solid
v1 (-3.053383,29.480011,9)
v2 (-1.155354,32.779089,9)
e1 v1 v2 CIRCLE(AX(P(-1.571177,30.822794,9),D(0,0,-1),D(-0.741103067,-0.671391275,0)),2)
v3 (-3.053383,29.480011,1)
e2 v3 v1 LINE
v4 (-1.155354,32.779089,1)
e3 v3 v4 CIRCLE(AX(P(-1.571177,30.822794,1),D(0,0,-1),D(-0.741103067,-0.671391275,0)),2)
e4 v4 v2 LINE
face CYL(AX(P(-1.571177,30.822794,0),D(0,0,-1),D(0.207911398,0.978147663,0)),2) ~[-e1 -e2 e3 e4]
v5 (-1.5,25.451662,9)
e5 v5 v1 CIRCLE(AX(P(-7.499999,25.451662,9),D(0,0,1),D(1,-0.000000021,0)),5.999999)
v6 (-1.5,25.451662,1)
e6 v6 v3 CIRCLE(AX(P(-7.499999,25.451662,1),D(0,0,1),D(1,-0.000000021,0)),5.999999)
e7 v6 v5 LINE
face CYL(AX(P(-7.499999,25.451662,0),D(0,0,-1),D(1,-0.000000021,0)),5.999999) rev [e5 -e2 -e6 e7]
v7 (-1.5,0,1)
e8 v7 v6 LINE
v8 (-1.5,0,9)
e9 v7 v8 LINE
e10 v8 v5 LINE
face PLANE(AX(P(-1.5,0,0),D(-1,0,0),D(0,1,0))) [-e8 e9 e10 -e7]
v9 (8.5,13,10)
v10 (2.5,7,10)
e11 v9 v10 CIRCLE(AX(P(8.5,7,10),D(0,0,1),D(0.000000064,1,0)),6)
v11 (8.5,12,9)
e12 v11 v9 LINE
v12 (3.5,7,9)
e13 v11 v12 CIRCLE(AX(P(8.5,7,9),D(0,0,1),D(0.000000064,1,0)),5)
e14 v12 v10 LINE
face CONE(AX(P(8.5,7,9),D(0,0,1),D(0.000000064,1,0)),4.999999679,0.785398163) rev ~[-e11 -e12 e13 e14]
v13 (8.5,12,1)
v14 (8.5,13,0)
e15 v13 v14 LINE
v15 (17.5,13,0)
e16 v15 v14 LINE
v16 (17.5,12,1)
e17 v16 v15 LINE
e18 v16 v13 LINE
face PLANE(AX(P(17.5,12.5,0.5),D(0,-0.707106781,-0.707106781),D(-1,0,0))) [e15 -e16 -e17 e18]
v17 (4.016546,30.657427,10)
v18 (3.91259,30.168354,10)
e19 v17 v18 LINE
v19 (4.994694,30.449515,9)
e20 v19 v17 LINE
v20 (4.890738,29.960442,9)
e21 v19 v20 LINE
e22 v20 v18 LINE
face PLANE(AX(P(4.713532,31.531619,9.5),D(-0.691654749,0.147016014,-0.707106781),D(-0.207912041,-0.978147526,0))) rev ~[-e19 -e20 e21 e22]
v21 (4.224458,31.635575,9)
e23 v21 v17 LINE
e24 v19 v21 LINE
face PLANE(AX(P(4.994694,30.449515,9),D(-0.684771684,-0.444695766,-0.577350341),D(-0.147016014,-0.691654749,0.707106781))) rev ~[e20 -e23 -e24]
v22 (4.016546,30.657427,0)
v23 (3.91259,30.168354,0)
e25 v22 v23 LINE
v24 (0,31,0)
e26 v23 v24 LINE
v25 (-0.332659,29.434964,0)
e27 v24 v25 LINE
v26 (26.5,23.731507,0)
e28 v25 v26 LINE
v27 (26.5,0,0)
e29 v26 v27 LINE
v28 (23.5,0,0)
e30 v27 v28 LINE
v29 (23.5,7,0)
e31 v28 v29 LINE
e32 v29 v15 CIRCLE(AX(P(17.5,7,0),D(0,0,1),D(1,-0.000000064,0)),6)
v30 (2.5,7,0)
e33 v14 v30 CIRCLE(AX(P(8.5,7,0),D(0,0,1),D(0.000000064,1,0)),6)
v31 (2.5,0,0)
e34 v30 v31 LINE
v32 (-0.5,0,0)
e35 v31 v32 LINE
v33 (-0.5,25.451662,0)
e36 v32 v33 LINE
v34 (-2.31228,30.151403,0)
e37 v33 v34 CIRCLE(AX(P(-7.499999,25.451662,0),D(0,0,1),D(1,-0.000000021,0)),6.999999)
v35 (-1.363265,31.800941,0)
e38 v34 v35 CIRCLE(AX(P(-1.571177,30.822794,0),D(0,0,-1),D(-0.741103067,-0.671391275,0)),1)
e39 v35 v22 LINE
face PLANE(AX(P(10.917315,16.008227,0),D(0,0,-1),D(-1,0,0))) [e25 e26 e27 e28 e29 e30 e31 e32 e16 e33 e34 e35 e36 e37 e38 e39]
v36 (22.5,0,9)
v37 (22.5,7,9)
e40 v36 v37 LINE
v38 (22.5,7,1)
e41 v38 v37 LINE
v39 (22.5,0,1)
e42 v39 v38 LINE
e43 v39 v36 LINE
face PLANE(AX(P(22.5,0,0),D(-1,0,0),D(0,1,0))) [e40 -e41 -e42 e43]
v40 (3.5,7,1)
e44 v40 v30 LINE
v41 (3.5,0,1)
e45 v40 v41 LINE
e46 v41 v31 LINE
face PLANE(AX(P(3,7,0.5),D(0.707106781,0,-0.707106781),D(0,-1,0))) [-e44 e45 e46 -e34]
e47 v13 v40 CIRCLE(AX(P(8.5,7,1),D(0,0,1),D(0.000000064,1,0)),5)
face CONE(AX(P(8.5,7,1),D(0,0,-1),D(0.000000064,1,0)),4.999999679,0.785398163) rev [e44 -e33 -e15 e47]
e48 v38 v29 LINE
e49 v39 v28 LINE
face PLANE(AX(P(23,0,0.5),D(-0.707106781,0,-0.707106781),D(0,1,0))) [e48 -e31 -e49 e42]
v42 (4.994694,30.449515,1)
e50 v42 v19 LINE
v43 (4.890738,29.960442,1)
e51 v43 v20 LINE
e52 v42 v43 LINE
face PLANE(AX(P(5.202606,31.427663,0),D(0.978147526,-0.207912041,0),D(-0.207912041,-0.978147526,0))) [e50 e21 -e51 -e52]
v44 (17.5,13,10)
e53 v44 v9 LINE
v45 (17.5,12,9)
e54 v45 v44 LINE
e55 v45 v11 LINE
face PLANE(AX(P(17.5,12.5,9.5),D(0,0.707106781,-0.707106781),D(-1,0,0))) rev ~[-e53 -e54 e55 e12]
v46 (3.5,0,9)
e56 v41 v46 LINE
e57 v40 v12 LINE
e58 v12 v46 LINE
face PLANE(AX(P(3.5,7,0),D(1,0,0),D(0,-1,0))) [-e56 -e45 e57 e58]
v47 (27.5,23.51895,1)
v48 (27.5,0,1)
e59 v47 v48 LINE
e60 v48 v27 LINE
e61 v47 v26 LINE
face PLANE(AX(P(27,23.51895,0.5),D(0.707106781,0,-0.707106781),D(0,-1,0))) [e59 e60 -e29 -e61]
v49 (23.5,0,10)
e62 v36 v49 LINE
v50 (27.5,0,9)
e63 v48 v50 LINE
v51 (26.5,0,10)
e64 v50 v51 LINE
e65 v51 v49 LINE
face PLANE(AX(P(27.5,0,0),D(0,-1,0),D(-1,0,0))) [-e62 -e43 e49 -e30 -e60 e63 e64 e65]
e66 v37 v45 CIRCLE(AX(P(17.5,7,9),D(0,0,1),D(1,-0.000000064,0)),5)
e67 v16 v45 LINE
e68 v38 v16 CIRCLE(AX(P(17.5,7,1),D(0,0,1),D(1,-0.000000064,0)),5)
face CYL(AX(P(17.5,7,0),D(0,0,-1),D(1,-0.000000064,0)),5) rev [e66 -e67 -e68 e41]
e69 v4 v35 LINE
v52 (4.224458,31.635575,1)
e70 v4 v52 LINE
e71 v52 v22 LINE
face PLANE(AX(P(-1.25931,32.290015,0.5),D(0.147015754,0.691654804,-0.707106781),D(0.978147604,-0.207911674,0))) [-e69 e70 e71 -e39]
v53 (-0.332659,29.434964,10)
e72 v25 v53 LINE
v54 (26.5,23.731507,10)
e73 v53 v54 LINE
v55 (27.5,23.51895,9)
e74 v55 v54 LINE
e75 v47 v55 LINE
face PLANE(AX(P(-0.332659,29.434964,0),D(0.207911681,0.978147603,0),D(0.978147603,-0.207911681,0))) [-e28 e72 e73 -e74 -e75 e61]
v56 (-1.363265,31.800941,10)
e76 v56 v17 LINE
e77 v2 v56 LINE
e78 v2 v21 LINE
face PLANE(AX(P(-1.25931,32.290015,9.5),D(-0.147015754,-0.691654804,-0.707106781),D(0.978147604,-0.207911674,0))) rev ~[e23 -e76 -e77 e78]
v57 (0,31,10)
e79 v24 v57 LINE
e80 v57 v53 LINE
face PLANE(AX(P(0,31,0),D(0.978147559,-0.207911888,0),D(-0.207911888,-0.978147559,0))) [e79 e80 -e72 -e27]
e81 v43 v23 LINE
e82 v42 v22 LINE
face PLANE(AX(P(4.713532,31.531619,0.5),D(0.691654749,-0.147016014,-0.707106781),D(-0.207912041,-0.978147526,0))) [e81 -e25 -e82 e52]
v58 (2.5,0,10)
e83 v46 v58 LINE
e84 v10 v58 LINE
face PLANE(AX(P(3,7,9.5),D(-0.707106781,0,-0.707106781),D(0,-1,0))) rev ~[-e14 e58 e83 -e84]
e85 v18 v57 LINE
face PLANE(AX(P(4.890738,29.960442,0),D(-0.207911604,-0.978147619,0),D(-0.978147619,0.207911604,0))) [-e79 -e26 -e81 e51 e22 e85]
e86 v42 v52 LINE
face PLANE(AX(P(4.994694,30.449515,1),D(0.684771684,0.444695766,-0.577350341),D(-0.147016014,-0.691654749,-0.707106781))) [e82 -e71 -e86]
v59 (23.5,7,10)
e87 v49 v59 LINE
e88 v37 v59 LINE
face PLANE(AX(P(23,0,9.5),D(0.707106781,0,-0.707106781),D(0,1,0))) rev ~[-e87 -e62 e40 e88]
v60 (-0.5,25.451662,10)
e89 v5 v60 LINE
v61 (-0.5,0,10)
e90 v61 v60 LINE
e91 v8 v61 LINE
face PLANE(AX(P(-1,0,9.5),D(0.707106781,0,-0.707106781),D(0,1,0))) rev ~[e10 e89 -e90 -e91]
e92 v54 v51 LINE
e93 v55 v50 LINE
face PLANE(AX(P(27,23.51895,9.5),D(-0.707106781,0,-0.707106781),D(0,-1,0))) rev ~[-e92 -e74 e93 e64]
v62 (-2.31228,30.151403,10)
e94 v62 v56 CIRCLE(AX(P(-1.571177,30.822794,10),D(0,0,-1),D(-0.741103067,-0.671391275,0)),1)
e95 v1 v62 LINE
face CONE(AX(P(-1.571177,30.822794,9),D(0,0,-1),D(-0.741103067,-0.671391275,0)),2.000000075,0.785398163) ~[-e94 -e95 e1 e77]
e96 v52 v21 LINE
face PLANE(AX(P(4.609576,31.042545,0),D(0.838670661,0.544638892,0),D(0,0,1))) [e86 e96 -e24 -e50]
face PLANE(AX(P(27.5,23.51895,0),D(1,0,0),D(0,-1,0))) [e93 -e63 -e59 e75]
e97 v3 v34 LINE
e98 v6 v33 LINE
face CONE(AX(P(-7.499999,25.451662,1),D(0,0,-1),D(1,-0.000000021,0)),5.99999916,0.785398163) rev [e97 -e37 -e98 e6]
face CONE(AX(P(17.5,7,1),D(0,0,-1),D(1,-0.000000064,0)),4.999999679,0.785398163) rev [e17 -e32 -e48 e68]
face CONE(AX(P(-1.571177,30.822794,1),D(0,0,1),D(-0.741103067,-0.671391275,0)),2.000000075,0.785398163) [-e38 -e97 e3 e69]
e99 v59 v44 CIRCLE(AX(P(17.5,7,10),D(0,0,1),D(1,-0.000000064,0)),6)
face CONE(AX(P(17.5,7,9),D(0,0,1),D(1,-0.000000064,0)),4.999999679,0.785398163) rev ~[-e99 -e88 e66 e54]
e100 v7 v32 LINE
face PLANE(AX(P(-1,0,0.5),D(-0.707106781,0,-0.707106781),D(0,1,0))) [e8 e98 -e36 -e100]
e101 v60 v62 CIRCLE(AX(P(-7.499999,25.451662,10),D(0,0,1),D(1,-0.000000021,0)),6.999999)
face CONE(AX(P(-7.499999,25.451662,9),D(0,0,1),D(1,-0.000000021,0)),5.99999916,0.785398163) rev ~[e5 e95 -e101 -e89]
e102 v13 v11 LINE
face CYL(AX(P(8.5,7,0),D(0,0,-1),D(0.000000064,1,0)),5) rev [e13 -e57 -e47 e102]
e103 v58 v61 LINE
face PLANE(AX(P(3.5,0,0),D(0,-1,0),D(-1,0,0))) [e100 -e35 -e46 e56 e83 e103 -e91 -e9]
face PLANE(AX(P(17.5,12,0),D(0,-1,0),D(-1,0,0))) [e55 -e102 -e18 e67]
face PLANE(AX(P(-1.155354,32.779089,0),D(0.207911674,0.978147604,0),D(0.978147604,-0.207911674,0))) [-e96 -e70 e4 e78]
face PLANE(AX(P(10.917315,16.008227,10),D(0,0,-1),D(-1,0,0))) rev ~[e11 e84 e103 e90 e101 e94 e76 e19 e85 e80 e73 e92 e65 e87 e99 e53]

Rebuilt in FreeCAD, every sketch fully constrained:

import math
import FreeCAD as App
import Part
import Sketcher
from FreeCAD import Vector
Q = App.Units.Quantity


def edges_at(feature, points):
    """Names of the edges that pass closest to the given points."""
    edges = feature.Shape.Edges
    near = lambda p: min(range(len(edges)), key=lambda i: edges[i].distToShape(Part.Vertex(*p))[0])
    return sorted({f"Edge{near(p) + 1}" for p in points})

doc = App.newDocument("Part")
body = doc.addObject("PartDesign::Body", "Body")

# Sketch on XZ plane
sketch1 = body.newObject("Sketcher::SketchObject", "Sketch")
sketch1.AttachmentSupport = (doc.getObject("XZ_Plane"), [""])
sketch1.MapMode = "FlatFace"
sketch1.addGeometry(Part.LineSegment(Vector(-1.5, 25.451662, 0), Vector(-1.5, 0, 0)), False)
sketch1.addGeometry(Part.LineSegment(Vector(-1.5, 0, 0), Vector(3.5, 0, 0)), False)
sketch1.addGeometry(Part.LineSegment(Vector(3.5, 0, 0), Vector(3.5, 7, 0)), False)
sketch1.addGeometry(Part.ArcOfCircle(Part.Circle(Vector(8.5, 7, 0), Vector(0, 0, 1), 5), math.radians(89.999996), math.radians(180.000004)), False)
sketch1.addGeometry(Part.LineSegment(Vector(8.5, 12, 0), Vector(17.5, 12, 0)), False)
sketch1.addGeometry(Part.ArcOfCircle(Part.Circle(Vector(17.5, 7, 0), Vector(0, 0, 1), 5), math.radians(-0.000004), math.radians(90.000004)), False)
sketch1.addGeometry(Part.LineSegment(Vector(22.5, 7, 0), Vector(22.5, 0, 0)), False)
sketch1.addGeometry(Part.LineSegment(Vector(22.5, 0, 0), Vector(27.5, 0, 0)), False)
sketch1.addGeometry(Part.LineSegment(Vector(27.5, 0, 0), Vector(27.5, 23.51895, 0)), False)
sketch1.addGeometry(Part.LineSegment(Vector(27.5, 23.51895, 0), Vector(-0.332659, 29.434964, 0)), False)
sketch1.addGeometry(Part.LineSegment(Vector(-0.332659, 29.434964, 0), Vector(0, 31, 0)), False)
sketch1.addGeometry(Part.LineSegment(Vector(0, 31, 0), Vector(4.890738, 29.960442, 0)), False)
sketch1.addGeometry(Part.LineSegment(Vector(4.890738, 29.960442, 0), Vector(5.202606, 31.427663, 0)), False)
sketch1.addGeometry(Part.LineSegment(Vector(5.202606, 31.427663, 0), Vector(-1.155354, 32.779089, 0)), False)
sketch1.addGeometry(Part.ArcOfCircle(Part.Circle(Vector(-1.571177, 30.822794, 0), Vector(0, 0, 1), 2), math.radians(78.000017), math.radians(222.174535)), False)
sketch1.addGeometry(Part.ArcOfCircle(Part.Circle(Vector(-7.499999, 25.451662, 0), Vector(0, 0, 1), 5.999999), math.radians(-0.000001), math.radians(42.174558)), False)
sketch1.addConstraint(Sketcher.Constraint("Coincident", 0, 2, 1, 1))
sketch1.addConstraint(Sketcher.Constraint("Coincident", 1, 2, 2, 1))
sketch1.addConstraint(Sketcher.Constraint("Tangent", 2, 2, 3, 2))
sketch1.addConstraint(Sketcher.Constraint("Tangent", 3, 1, 4, 1))
sketch1.addConstraint(Sketcher.Constraint("Tangent", 4, 2, 5, 2))
sketch1.addConstraint(Sketcher.Constraint("Tangent", 5, 1, 6, 1))
sketch1.addConstraint(Sketcher.Constraint("Coincident", 6, 2, 7, 1))
sketch1.addConstraint(Sketcher.Constraint("Coincident", 7, 2, 8, 1))
sketch1.addConstraint(Sketcher.Constraint("Coincident", 8, 2, 9, 1))
sketch1.addConstraint(Sketcher.Constraint("Coincident", 9, 2, 10, 1))
sketch1.addConstraint(Sketcher.Constraint("Coincident", 10, 2, 11, 1))
sketch1.addConstraint(Sketcher.Constraint("Coincident", 11, 2, 12, 1))
sketch1.addConstraint(Sketcher.Constraint("Coincident", 12, 2, 13, 1))
sketch1.addConstraint(Sketcher.Constraint("Tangent", 13, 2, 14, 1))
sketch1.addConstraint(Sketcher.Constraint("Tangent", 14, 2, 15, 2))
sketch1.addConstraint(Sketcher.Constraint("Tangent", 15, 1, 0, 1))
sketch1.addConstraint(Sketcher.Constraint("Vertical", 0))
sketch1.addConstraint(Sketcher.Constraint("Horizontal", 1))
sketch1.addConstraint(Sketcher.Constraint("Vertical", 2))
sketch1.addConstraint(Sketcher.Constraint("Horizontal", 4))
sketch1.addConstraint(Sketcher.Constraint("Vertical", 6))
sketch1.addConstraint(Sketcher.Constraint("Horizontal", 7))
sketch1.addConstraint(Sketcher.Constraint("Vertical", 8))
sketch1.addConstraint(Sketcher.Constraint("Equal", 3, 5))
sketch1.addConstraint(Sketcher.Constraint("PointOnObject", 0, 2, -1))
sketch1.addConstraint(Sketcher.Constraint("PointOnObject", 6, 2, -1))
sketch1.addConstraint(Sketcher.Constraint("PointOnObject", 10, 2, -2))
sketch1.addConstraint(Sketcher.Constraint("Perpendicular", 9, 10))
sketch1.addConstraint(Sketcher.Constraint("Perpendicular", 10, 11))
sketch1.addConstraint(Sketcher.Constraint("Perpendicular", 11, 12))
sketch1.addConstraint(Sketcher.Constraint("Perpendicular", 12, 13))
sketch1.addConstraint(Sketcher.Constraint("Equal", 1, 7))
sketch1.addConstraint(Sketcher.Constraint("Radius", 3, 5.0))
sketch1.addConstraint(Sketcher.Constraint("Radius", 14, 2.0))
sketch1.addConstraint(Sketcher.Constraint("Radius", 15, 5.999999))
sketch1.addConstraint(Sketcher.Constraint("DistanceX", 1, 1, 1, 2, 5.0))
sketch1.addConstraint(Sketcher.Constraint("DistanceX", 4, 1, 4, 2, 9.0))
sketch1.addConstraint(Sketcher.Constraint("DistanceY", 2, 1, 2, 2, 7.0))
sketch1.addConstraint(Sketcher.Constraint("Angle", 9, Q("168.000001 deg")))
sketch1.addConstraint(Sketcher.Constraint("Distance", 11, 5.0))
sketch1.addConstraint(Sketcher.Constraint("DistanceY", -1, 1, 10, 2, 31.0))
sketch1.addConstraint(Sketcher.Constraint("Distance", 10, 1.6))
sketch1.addConstraint(Sketcher.Constraint("Distance", 12, 1.5))
sketch1.addConstraint(Sketcher.Constraint("Distance", 13, 6.500001))
sketch1.addConstraint(Sketcher.Constraint("DistanceX", -1, 1, 3, 3, 8.5))
pad1 = body.newObject("PartDesign::Pad", "Pad")
pad1.Profile = sketch1
pad1.Length = 10
doc.recompute()

chamfer = body.newObject("PartDesign::Chamfer", "Chamfer")
chamfer.Base = (pad1, edges_at(pad1, [
    (-1.5, -10, 12.726),
    (3.5, -10, 3.5),
    (27.5, -10, 11.759),
    (27.5, 0, 11.759),
    (-1.5, 0, 12.726),
    (22.5, 0, 3.5),
    (5.203, -5, 31.428),
    (5.047, 0, 30.694),
    (5.047, -10, 30.694),
]))
chamfer.Size = 1
body2 = doc.addObject("PartDesign::Body", "Body001")
doc.recompute()

body.Placement = App.Placement(Vector(0, 0, 0), App.Rotation(Vector(1, 0, 0), 270))
boolean = body2.newObject("PartDesign::Boolean", "Boolean")
boolean.Type = "Fuse"
boolean.addObjects([body])

doc.recompute()
